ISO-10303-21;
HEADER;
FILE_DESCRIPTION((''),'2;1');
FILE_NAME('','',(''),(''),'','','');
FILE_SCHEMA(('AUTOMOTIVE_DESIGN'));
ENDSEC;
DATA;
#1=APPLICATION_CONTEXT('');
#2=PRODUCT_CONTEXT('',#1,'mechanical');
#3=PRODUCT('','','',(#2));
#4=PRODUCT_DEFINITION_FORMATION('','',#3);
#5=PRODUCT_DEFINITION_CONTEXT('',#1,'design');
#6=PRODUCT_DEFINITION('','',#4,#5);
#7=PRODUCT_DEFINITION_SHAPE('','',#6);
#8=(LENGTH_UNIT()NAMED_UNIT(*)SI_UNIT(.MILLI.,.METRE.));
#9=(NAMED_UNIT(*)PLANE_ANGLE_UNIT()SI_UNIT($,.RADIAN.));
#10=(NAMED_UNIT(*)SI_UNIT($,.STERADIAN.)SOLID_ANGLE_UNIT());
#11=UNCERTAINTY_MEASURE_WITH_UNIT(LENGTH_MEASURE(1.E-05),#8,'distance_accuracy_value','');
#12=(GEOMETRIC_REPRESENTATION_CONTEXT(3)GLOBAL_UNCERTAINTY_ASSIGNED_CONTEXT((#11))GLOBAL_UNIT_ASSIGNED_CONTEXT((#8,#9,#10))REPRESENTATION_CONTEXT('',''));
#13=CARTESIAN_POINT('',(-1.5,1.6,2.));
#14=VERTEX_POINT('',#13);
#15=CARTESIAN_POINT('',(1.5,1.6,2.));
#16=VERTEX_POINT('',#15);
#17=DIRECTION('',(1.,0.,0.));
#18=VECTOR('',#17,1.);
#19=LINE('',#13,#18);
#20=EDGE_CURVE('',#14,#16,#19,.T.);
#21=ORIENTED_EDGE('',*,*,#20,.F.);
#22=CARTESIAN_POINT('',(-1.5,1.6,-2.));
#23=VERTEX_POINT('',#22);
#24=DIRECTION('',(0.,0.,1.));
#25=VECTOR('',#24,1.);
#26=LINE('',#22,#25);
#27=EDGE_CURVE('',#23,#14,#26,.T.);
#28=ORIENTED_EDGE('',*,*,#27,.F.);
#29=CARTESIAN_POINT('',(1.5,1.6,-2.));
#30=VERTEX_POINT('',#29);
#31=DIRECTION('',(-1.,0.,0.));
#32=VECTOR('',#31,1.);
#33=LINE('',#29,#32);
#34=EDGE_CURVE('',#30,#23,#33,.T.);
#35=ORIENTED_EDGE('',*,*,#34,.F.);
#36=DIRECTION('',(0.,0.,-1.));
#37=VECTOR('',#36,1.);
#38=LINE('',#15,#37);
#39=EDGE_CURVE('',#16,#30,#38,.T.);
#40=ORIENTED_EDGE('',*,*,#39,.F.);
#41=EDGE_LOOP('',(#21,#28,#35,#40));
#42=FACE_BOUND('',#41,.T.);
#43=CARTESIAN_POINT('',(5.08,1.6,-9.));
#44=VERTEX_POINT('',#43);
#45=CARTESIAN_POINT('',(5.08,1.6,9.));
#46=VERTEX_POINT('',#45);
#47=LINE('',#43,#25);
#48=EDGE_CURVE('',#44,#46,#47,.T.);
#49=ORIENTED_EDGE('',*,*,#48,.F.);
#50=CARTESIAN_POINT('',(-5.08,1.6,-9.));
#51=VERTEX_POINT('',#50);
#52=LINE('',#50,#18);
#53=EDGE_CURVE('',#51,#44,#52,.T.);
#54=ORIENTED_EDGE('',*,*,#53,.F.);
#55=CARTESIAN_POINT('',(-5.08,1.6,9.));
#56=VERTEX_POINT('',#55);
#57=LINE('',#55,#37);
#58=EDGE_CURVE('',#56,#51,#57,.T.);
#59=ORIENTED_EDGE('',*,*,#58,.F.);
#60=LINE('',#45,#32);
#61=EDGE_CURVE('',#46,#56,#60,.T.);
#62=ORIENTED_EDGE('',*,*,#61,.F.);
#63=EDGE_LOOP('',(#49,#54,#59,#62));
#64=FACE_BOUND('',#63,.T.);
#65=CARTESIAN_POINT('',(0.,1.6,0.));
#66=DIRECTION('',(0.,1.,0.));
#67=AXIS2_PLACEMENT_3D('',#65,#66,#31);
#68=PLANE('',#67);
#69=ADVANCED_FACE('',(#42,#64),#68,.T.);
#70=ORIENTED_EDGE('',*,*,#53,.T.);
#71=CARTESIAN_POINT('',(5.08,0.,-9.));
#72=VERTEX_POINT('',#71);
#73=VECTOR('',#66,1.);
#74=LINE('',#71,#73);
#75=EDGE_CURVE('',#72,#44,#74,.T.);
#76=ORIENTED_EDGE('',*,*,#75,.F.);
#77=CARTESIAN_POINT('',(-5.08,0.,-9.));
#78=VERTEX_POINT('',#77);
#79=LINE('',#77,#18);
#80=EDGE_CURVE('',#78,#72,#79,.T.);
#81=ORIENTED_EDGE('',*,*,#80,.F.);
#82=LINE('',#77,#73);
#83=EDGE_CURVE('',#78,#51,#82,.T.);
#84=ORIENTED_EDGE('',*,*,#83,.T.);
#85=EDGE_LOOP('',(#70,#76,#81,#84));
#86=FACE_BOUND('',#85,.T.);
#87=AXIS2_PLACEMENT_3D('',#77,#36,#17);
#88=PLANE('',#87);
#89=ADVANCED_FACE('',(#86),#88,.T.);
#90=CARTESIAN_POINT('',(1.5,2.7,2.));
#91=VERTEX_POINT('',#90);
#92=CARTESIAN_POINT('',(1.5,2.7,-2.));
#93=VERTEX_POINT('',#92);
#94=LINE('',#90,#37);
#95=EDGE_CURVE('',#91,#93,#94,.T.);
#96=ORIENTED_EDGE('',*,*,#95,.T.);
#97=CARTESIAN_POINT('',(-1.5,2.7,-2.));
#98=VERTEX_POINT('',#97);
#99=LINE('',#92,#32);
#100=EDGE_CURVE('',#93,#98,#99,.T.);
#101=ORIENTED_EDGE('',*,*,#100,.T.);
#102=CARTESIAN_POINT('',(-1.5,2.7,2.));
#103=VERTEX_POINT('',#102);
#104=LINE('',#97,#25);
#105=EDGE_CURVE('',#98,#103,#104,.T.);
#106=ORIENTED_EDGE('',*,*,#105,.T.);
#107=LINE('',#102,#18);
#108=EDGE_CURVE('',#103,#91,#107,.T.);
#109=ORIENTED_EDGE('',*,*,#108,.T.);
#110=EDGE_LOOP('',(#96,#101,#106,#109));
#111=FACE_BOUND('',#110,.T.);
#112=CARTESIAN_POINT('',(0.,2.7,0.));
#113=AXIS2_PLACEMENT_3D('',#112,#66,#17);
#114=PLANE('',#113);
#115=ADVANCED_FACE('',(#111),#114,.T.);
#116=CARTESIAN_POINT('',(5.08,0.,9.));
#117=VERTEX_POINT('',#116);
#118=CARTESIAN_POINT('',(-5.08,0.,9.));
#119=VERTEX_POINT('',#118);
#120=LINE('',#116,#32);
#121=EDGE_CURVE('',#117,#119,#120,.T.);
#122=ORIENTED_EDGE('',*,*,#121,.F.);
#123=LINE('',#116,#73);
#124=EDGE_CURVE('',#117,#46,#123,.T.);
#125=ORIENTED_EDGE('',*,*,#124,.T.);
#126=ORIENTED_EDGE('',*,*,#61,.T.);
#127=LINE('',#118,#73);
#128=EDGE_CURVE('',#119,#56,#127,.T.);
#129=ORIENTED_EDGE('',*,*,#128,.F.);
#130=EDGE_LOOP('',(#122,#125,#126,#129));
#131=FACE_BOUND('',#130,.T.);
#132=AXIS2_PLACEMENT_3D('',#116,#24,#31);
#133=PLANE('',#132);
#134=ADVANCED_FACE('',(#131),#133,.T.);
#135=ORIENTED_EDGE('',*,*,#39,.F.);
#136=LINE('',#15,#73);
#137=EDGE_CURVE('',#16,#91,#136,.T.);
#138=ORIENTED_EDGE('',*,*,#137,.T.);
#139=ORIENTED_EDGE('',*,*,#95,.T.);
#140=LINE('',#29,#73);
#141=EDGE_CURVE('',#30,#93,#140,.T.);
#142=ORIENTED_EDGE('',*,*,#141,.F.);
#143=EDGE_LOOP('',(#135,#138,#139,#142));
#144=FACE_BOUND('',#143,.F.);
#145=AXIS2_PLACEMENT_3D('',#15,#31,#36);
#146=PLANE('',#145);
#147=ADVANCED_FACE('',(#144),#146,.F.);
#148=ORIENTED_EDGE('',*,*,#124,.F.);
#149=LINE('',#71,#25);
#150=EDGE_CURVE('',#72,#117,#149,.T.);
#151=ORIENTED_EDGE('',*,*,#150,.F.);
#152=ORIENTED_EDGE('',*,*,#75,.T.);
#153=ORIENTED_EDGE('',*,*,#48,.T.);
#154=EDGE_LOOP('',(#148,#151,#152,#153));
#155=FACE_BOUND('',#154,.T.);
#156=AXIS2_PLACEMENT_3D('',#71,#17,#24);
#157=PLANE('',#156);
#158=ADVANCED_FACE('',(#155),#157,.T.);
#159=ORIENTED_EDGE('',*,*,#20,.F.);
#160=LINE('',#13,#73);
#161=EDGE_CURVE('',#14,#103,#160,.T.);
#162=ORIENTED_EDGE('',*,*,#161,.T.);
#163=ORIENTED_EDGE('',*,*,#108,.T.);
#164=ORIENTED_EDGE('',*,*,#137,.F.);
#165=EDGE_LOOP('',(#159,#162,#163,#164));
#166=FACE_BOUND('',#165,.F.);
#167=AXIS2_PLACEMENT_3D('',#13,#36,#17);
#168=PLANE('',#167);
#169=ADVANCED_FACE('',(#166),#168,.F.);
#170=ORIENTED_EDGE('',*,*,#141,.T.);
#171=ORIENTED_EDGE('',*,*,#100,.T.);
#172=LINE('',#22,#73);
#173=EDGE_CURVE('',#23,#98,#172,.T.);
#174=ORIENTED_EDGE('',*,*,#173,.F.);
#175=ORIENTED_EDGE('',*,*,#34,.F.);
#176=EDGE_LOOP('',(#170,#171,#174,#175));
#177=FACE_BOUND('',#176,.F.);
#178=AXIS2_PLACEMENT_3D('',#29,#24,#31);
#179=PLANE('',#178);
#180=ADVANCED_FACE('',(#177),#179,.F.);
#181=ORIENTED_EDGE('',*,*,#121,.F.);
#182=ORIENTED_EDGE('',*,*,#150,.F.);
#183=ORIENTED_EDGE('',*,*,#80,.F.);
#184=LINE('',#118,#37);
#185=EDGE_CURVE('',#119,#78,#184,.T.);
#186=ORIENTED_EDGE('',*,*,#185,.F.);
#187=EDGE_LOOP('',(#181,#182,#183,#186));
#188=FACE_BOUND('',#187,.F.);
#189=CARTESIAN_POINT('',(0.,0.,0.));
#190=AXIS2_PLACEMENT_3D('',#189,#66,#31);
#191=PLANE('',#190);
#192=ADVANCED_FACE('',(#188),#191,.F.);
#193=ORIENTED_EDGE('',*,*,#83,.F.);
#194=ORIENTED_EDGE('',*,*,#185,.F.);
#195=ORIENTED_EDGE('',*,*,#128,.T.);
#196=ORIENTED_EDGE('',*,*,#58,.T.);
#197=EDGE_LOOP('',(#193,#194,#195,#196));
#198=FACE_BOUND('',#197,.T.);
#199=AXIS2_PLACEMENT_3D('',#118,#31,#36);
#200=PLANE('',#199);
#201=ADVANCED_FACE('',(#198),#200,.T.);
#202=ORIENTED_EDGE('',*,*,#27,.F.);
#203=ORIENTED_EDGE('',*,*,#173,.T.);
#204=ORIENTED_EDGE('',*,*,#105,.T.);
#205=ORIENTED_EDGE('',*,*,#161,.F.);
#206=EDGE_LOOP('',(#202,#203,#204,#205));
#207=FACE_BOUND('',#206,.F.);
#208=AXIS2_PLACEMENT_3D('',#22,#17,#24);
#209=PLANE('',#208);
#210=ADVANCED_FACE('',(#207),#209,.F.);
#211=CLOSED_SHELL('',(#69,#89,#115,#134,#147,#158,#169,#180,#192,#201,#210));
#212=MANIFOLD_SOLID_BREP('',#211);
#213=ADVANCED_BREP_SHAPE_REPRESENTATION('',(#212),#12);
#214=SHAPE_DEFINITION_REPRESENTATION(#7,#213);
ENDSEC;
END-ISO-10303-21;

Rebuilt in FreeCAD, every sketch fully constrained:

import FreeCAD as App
import Part
import Sketcher

V = App.Vector
Q = App.Units.Quantity


def add_polygon(sketch, points):
    """Adds a closed chain of lines whose ends are joined by coincident constraints."""
    first, n = sketch.GeometryCount, len(points)
    for a, b in zip(points, points[1:] + points[:1]):
        sketch.addGeometry(Part.LineSegment(App.Vector(*a, 0), App.Vector(*b, 0)), False)
    for i in range(n):
        sketch.addConstraint(Sketcher.Constraint("Coincident", first + i, 2, first + (i + 1) % n, 1))

doc = App.newDocument("Part")
params = doc.addObject("Spreadsheet::Sheet", "Params")
for row, (alias, value) in enumerate([
    ("sketch1_height", "18 mm"),
    ("sketch1_width", "10.16 mm"),
    ("pad1_length", "1.6 mm"),
    ("sketch2_width", "3 mm"),
    ("sketch2_height", "4 mm"),
    ("pad2_length", "1.1 mm"),
], start=1):
    params.set(f"A{row}", alias)
    params.set(f"B{row}", "=" + value)
    params.setAlias(f"B{row}", alias)

body = doc.addObject("PartDesign::Body", "Body")

# Sketch on XZ plane
sketch1 = body.newObject("Sketcher::SketchObject", "Sketch")
sketch1.AttachmentSupport = (doc.getObject("XZ_Plane"), [""])
sketch1.MapMode = "FlatFace"
add_polygon(sketch1, [(5, -9), (-5, -9), (-5, 9), (5, 9)])  # lines 0-3
sketch1.addConstraint([
    Sketcher.Constraint("Horizontal", 0),
    Sketcher.Constraint("Vertical", 1),
    Sketcher.Constraint("Horizontal", 2),
    Sketcher.Constraint("Vertical", 3),
    Sketcher.Constraint("Symmetric", 0, 2, 2, 2, -1, 1),
    Sketcher.Constraint("DistanceY", 1, 1, 1, 2, Q("18 mm")),
    Sketcher.Constraint("DistanceX", 0, 2, 0, 1, Q("10.16 mm")),
])
sketch1.setExpression("Constraints[9]", "Params.sketch1_height")
sketch1.setExpression("Constraints[10]", "Params.sketch1_width")
pad1 = body.newObject("PartDesign::Pad", "Pad")
pad1.Profile = sketch1
pad1.setExpression("Length", "Params.pad1_length")
pad1.Reversed = True

# Sketch on XZ plane
sketch2 = body.newObject("Sketcher::SketchObject", "Sketch001")
sketch2.AttachmentSupport = (doc.getObject("XZ_Plane"), [""])
sketch2.MapMode = "FlatFace"
sketch2.AttachmentOffset = App.Placement(V(0, 0, -1.6), App.Rotation())
add_polygon(sketch2, [(1.5, 2), (1.5, -2), (-1.5, -2), (-1.5, 2)])  # lines 0-3
sketch2.addConstraint([
    Sketcher.Constraint("Vertical", 0),
    Sketcher.Constraint("Horizontal", 1),
    Sketcher.Constraint("Vertical", 2),
    Sketcher.Constraint("Horizontal", 3),
    Sketcher.Constraint("Symmetric", 0, 2, 2, 2, -1, 1),
    Sketcher.Constraint("DistanceX", 1, 2, 1, 1, Q("3 mm")),
    Sketcher.Constraint("DistanceY", 0, 2, 0, 1, Q("4 mm")),
])
sketch2.setExpression("Constraints[9]", "Params.sketch2_width")
sketch2.setExpression("Constraints[10]", "Params.sketch2_height")
pad2 = body.newObject("PartDesign::Pad", "Pad001")
pad2.Profile = sketch2
pad2.setExpression("Length", "Params.pad2_length")
pad2.Reversed = True

doc.recompute()
